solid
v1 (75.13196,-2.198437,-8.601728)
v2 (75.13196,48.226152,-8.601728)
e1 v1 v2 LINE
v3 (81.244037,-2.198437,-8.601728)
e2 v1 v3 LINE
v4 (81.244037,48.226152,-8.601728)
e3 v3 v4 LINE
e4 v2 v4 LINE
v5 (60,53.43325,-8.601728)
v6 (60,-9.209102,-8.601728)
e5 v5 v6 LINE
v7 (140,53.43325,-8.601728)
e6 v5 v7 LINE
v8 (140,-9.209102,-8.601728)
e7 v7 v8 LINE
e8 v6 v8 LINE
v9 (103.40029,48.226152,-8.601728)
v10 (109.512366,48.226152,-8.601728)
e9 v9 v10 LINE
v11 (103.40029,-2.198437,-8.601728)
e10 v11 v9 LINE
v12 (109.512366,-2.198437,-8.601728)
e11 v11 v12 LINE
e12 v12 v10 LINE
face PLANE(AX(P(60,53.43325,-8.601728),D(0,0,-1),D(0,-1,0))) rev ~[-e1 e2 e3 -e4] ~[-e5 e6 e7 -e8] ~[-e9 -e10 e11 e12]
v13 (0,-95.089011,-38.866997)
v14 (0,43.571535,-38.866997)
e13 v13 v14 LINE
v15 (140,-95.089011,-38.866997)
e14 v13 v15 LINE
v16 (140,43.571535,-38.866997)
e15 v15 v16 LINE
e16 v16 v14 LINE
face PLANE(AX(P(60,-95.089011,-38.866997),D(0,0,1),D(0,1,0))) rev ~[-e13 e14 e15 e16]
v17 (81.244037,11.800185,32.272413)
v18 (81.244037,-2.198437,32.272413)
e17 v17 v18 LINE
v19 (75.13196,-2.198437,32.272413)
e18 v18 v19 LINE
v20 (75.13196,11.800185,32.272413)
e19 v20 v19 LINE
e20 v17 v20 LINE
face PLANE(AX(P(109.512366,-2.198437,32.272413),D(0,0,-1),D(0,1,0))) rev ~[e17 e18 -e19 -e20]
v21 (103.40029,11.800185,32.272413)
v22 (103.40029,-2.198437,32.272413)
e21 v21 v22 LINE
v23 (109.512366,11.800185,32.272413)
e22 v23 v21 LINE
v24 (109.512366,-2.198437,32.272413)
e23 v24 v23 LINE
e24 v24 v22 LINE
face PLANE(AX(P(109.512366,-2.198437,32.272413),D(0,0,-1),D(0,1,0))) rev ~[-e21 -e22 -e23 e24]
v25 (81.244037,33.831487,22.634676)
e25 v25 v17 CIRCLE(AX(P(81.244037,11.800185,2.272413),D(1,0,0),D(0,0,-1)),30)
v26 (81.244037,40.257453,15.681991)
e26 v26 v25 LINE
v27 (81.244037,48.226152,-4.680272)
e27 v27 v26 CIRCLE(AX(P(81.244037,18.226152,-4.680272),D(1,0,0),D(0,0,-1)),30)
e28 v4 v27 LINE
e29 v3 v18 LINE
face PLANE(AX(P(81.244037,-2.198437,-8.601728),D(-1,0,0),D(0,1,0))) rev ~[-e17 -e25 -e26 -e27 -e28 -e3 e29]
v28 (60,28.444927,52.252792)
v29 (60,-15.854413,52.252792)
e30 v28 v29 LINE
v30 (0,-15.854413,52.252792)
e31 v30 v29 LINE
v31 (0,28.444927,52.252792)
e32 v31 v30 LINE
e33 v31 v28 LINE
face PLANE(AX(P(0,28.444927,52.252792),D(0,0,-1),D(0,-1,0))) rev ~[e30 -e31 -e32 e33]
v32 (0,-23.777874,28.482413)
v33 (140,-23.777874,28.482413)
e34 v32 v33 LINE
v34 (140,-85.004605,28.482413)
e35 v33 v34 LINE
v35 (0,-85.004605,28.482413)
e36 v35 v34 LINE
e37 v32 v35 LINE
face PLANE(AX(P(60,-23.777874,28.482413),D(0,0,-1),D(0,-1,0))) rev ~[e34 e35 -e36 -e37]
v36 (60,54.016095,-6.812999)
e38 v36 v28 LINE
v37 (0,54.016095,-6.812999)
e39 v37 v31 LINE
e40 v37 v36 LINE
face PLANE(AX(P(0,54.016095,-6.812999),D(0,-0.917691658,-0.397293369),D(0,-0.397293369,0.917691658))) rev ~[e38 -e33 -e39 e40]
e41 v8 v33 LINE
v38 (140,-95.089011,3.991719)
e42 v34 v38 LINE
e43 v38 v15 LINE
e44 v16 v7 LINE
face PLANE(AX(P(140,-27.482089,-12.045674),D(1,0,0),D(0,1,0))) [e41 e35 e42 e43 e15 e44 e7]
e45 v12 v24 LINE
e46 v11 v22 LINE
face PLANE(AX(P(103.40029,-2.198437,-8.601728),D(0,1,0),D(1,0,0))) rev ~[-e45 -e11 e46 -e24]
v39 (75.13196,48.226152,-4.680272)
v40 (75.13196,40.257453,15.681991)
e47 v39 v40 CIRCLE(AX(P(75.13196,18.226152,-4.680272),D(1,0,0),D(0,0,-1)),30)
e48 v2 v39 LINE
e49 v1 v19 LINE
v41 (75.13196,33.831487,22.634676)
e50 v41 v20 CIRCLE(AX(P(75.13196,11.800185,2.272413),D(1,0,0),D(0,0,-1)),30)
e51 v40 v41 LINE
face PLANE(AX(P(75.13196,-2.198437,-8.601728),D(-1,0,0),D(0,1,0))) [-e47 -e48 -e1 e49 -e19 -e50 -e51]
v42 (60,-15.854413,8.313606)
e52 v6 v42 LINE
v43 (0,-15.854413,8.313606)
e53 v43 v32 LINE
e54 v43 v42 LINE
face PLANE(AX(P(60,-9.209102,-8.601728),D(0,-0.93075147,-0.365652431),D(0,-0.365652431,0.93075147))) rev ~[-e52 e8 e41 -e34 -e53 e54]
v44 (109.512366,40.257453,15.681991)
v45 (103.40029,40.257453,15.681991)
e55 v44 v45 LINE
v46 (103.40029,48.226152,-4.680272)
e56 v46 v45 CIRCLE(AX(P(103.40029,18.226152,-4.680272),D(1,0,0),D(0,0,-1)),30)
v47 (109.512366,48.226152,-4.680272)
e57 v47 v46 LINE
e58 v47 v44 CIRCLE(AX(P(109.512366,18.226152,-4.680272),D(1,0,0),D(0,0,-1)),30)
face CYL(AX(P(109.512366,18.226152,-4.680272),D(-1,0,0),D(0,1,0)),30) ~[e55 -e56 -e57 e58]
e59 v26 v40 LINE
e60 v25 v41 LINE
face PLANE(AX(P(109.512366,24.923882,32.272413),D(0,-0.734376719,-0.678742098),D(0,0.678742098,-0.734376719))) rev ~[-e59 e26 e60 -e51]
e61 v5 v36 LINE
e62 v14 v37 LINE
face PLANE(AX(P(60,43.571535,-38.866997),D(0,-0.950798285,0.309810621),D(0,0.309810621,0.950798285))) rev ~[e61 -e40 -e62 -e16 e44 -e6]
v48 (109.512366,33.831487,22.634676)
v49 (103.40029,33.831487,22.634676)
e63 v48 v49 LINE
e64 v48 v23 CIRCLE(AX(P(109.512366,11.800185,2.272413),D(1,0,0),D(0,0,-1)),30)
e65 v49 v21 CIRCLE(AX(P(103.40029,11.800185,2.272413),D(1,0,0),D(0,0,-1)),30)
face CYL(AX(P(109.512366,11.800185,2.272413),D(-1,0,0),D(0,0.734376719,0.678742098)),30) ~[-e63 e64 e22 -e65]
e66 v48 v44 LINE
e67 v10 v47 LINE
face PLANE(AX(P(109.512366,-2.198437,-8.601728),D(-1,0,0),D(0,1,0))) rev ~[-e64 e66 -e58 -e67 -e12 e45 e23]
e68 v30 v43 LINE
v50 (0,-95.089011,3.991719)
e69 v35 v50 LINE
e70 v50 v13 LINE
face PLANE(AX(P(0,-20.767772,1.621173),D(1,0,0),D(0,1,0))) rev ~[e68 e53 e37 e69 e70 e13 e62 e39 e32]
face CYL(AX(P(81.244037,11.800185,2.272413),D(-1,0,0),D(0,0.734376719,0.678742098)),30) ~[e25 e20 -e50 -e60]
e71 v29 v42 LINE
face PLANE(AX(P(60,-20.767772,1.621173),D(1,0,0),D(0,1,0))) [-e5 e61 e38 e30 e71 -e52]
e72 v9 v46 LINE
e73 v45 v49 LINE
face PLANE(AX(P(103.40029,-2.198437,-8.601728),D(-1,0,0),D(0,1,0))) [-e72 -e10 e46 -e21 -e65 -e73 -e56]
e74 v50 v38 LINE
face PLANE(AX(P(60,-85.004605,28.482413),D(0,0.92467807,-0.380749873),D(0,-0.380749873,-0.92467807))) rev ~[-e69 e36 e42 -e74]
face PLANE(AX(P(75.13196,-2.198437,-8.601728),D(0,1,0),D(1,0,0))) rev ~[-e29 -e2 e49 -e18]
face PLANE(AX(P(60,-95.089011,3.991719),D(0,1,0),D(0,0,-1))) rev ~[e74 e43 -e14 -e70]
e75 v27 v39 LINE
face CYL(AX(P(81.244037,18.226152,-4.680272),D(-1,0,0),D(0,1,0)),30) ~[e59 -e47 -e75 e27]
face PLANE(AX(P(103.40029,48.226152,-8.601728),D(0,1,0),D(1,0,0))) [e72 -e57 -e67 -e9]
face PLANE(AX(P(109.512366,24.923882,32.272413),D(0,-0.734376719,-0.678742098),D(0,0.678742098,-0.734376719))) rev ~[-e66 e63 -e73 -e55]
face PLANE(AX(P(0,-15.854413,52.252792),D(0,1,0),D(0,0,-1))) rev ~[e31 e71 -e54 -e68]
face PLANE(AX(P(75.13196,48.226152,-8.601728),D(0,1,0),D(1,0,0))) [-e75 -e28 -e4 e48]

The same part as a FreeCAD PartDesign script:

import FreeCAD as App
import Part
import Sketcher

V = App.Vector


def edges_at(feature, points):
    """Names of the edges that pass closest to the given points."""
    edges = feature.Shape.Edges
    near = lambda p: min(range(len(edges)), key=lambda i: edges[i].distToShape(Part.Vertex(*p))[0])
    return sorted({f"Edge{near(p) + 1}" for p in points})


def add_polygon(sketch, points):
    """Adds a closed chain of lines whose ends are joined by coincident constraints."""
    first, n = sketch.GeometryCount, len(points)
    for a, b in zip(points, points[1:] + points[:1]):
        sketch.addGeometry(Part.LineSegment(App.Vector(*a, 0), App.Vector(*b, 0)), False)
    for i in range(n):
        sketch.addConstraint(Sketcher.Constraint("Coincident", first + i, 2, first + (i + 1) % n, 1))

doc = App.newDocument("Part")
body = doc.addObject("PartDesign::Body", "Body")

# Sketch on YZ plane
sketch1 = body.newObject("Sketcher::SketchObject", "Sketch")
sketch1.AttachmentSupport = (doc.getObject("YZ_Plane"), [""])
sketch1.MapMode = "FlatFace"
add_polygon(sketch1, [(-85, 28), (-95, 4), (-95, -39), (44, -39), (54, -7), (28, 52), (-16, 52), (-16, 8), (-24, 28)])  # lines 0-8
sketch1.addConstraint([
    Sketcher.Constraint("Vertical", 1),
    Sketcher.Constraint("Horizontal", 2),
    Sketcher.Constraint("Horizontal", 5),
    Sketcher.Constraint("Vertical", 6),
    Sketcher.Constraint("Horizontal", 8),
    Sketcher.Constraint("DistanceY", 3, 2, -1, 1, 6.812999),
    Sketcher.Constraint("DistanceX", 5, 2, 5, 1, 44.29934),
    Sketcher.Constraint("DistanceX", 8, 2, 8, 1, 61.226731),
    Sketcher.Constraint("DistanceX", 0, 2, 5, 2, 79.234598),
    Sketcher.Constraint("DistanceX", 7, 2, 4, 2, 52.222801),
    Sketcher.Constraint("Distance", 3, 33.712721),
    Sketcher.Constraint("Distance", 4, 64.363439),
    Sketcher.Constraint("Distance", 7, 21.66938),
    Sketcher.Constraint("DistanceX", 2, 1, 2, 2, 138.660546),
    Sketcher.Constraint("DistanceY", 1, 2, 1, 1, 42.858716),
    Sketcher.Constraint("DistanceY", 6, 2, 6, 1, 43.939186),
    Sketcher.Constraint("DistanceX", 0, 2, -1, 1, 95.089011),
    Sketcher.Constraint("DistanceY", -1, 1, 0, 2, 3.991719),
])
pad1 = body.newObject("PartDesign::Pad", "Pad")
pad1.Profile = sketch1
pad1.Length = 60

# Sketch on YZ plane
sketch2 = body.newObject("Sketcher::SketchObject", "Sketch001")
sketch2.AttachmentSupport = (doc.getObject("YZ_Plane"), [""])
sketch2.MapMode = "FlatFace"
sketch2.AttachmentOffset = App.Placement(V(0, 0, 60), App.Rotation())
add_polygon(sketch2, [(-9, -9), (-24, 28), (-85, 28), (-95, 4), (-95, -39), (44, -39), (53, -9)])  # lines 0-6
sketch2.addConstraint([
    Sketcher.Constraint("Horizontal", 1),
    Sketcher.Constraint("Vertical", 3),
    Sketcher.Constraint("Horizontal", 4),
    Sketcher.Constraint("Horizontal", 6),
    Sketcher.Constraint("DistanceX", 1, 2, 1, 1, 61.226731),
    Sketcher.Constraint("DistanceX", 6, 2, -1, 1, 9.209102),
    Sketcher.Constraint("Distance", 5, 31.83143),
    Sketcher.Constraint("DistanceX", 4, 1, 4, 2, 138.660546),
    Sketcher.Constraint("DistanceX", 6, 2, 6, 1, 62.642352),
    Sketcher.Constraint("DistanceY", 3, 2, 3, 1, 42.858716),
    Sketcher.Constraint("DistanceX", 2, 2, -1, 1, 95.089011),
    Sketcher.Constraint("DistanceY", -1, 1, 2, 2, 3.991719),
    Sketcher.Constraint("DistanceY", 3, 2, 1, 2, 67.34941),
    Sketcher.Constraint("DistanceX", 0, 2, 4, 2, 67.34941),
])
pad2 = body.newObject("PartDesign::Pad", "Pad001")
pad2.Profile = sketch2
pad2.Length = 80

# Sketch on XY plane
sketch3 = body.newObject("Sketcher::SketchObject", "Sketch002")
sketch3.AttachmentSupport = (doc.getObject("XY_Plane"), [""])
sketch3.MapMode = "FlatFace"
sketch3.AttachmentOffset = App.Placement(V(0, 0, -8.601728), App.Rotation())
add_polygon(sketch3, [(75, 48), (75, -2), (81, -2), (81, 48)])  # lines 0-3
add_polygon(sketch3, [(103, 48), (103, -2), (110, -2), (110, 48)])  # lines 4-7
sketch3.addConstraint([
    Sketcher.Constraint("Vertical", 0),
    Sketcher.Constraint("Horizontal", 1),
    Sketcher.Constraint("Vertical", 2),
    Sketcher.Constraint("Horizontal", 3),
    Sketcher.Constraint("Vertical", 4),
    Sketcher.Constraint("Horizontal", 5),
    Sketcher.Constraint("Vertical", 6),
    Sketcher.Constraint("Horizontal", 7),
    Sketcher.Constraint("Horizontal", 1, 2, 4, 2),
    Sketcher.Constraint("Horizontal", 3, 2, 6, 2),
    Sketcher.Constraint("Equal", 3, 5),
    Sketcher.Constraint("DistanceY", 0, 2, 0, 1, 50.424588),
    Sketcher.Constraint("DistanceX", 1, 1, 1, 2, 6.112076),
    Sketcher.Constraint("DistanceX", -1, 1, 0, 2, 75.13196),
    Sketcher.Constraint("DistanceY", -1, 1, 2, 2, 48.226152),
    Sketcher.Constraint("DistanceX", -1, 1, 4, 2, 103.40029),
])
pad3 = body.newObject("PartDesign::Pad", "Pad002")
pad3.Profile = sketch3
pad3.Length = 57.3

# Sketch on YZ plane
sketch4 = body.newObject("Sketcher::SketchObject", "Sketch003")
sketch4.AttachmentSupport = (doc.getObject("YZ_Plane"), [""])
sketch4.MapMode = "FlatFace"
sketch4.AttachmentOffset = App.Placement(V(0, 0, 109.512366), App.Rotation())
add_polygon(sketch4, [(-2, 49), (-2, 32), (25, 32), (48, 7), (48, 49)])  # lines 0-4
sketch4.addConstraint([
    Sketcher.Constraint("Vertical", 0),
    Sketcher.Constraint("Horizontal", 1),
    Sketcher.Constraint("Vertical", 3),
    Sketcher.Constraint("Horizontal", 4),
    Sketcher.Constraint("DistanceX", 1, 1, 1, 2, 27.122318),
    Sketcher.Constraint("DistanceX", 4, 2, 4, 1, 50.424588),
    Sketcher.Constraint("DistanceY", 0, 2, 0, 1, 16.425859),
    Sketcher.Constraint("DistanceY", 3, 1, 3, 2, 41.638152),
    Sketcher.Constraint("DistanceX", -1, 1, 1, 2, 24.923882),
    Sketcher.Constraint("DistanceY", -1, 1, 2, 2, 7.06012),
])
pocket1 = body.newObject("PartDesign::Pocket", "Pocket")
pocket1.Profile = sketch4
pocket1.Length = 45.7
doc.recompute()

fillet = body.newObject("PartDesign::Fillet", "Fillet")
fillet.Base = (pocket1, edges_at(pocket1, [
    (106.456, 48.226, 7.06),
    (106.456, 24.924, 32.272),
    (78.188, 24.924, 32.272),
    (78.188, 48.226, 7.06),
]))
fillet.Radius = 30

doc.recompute()
